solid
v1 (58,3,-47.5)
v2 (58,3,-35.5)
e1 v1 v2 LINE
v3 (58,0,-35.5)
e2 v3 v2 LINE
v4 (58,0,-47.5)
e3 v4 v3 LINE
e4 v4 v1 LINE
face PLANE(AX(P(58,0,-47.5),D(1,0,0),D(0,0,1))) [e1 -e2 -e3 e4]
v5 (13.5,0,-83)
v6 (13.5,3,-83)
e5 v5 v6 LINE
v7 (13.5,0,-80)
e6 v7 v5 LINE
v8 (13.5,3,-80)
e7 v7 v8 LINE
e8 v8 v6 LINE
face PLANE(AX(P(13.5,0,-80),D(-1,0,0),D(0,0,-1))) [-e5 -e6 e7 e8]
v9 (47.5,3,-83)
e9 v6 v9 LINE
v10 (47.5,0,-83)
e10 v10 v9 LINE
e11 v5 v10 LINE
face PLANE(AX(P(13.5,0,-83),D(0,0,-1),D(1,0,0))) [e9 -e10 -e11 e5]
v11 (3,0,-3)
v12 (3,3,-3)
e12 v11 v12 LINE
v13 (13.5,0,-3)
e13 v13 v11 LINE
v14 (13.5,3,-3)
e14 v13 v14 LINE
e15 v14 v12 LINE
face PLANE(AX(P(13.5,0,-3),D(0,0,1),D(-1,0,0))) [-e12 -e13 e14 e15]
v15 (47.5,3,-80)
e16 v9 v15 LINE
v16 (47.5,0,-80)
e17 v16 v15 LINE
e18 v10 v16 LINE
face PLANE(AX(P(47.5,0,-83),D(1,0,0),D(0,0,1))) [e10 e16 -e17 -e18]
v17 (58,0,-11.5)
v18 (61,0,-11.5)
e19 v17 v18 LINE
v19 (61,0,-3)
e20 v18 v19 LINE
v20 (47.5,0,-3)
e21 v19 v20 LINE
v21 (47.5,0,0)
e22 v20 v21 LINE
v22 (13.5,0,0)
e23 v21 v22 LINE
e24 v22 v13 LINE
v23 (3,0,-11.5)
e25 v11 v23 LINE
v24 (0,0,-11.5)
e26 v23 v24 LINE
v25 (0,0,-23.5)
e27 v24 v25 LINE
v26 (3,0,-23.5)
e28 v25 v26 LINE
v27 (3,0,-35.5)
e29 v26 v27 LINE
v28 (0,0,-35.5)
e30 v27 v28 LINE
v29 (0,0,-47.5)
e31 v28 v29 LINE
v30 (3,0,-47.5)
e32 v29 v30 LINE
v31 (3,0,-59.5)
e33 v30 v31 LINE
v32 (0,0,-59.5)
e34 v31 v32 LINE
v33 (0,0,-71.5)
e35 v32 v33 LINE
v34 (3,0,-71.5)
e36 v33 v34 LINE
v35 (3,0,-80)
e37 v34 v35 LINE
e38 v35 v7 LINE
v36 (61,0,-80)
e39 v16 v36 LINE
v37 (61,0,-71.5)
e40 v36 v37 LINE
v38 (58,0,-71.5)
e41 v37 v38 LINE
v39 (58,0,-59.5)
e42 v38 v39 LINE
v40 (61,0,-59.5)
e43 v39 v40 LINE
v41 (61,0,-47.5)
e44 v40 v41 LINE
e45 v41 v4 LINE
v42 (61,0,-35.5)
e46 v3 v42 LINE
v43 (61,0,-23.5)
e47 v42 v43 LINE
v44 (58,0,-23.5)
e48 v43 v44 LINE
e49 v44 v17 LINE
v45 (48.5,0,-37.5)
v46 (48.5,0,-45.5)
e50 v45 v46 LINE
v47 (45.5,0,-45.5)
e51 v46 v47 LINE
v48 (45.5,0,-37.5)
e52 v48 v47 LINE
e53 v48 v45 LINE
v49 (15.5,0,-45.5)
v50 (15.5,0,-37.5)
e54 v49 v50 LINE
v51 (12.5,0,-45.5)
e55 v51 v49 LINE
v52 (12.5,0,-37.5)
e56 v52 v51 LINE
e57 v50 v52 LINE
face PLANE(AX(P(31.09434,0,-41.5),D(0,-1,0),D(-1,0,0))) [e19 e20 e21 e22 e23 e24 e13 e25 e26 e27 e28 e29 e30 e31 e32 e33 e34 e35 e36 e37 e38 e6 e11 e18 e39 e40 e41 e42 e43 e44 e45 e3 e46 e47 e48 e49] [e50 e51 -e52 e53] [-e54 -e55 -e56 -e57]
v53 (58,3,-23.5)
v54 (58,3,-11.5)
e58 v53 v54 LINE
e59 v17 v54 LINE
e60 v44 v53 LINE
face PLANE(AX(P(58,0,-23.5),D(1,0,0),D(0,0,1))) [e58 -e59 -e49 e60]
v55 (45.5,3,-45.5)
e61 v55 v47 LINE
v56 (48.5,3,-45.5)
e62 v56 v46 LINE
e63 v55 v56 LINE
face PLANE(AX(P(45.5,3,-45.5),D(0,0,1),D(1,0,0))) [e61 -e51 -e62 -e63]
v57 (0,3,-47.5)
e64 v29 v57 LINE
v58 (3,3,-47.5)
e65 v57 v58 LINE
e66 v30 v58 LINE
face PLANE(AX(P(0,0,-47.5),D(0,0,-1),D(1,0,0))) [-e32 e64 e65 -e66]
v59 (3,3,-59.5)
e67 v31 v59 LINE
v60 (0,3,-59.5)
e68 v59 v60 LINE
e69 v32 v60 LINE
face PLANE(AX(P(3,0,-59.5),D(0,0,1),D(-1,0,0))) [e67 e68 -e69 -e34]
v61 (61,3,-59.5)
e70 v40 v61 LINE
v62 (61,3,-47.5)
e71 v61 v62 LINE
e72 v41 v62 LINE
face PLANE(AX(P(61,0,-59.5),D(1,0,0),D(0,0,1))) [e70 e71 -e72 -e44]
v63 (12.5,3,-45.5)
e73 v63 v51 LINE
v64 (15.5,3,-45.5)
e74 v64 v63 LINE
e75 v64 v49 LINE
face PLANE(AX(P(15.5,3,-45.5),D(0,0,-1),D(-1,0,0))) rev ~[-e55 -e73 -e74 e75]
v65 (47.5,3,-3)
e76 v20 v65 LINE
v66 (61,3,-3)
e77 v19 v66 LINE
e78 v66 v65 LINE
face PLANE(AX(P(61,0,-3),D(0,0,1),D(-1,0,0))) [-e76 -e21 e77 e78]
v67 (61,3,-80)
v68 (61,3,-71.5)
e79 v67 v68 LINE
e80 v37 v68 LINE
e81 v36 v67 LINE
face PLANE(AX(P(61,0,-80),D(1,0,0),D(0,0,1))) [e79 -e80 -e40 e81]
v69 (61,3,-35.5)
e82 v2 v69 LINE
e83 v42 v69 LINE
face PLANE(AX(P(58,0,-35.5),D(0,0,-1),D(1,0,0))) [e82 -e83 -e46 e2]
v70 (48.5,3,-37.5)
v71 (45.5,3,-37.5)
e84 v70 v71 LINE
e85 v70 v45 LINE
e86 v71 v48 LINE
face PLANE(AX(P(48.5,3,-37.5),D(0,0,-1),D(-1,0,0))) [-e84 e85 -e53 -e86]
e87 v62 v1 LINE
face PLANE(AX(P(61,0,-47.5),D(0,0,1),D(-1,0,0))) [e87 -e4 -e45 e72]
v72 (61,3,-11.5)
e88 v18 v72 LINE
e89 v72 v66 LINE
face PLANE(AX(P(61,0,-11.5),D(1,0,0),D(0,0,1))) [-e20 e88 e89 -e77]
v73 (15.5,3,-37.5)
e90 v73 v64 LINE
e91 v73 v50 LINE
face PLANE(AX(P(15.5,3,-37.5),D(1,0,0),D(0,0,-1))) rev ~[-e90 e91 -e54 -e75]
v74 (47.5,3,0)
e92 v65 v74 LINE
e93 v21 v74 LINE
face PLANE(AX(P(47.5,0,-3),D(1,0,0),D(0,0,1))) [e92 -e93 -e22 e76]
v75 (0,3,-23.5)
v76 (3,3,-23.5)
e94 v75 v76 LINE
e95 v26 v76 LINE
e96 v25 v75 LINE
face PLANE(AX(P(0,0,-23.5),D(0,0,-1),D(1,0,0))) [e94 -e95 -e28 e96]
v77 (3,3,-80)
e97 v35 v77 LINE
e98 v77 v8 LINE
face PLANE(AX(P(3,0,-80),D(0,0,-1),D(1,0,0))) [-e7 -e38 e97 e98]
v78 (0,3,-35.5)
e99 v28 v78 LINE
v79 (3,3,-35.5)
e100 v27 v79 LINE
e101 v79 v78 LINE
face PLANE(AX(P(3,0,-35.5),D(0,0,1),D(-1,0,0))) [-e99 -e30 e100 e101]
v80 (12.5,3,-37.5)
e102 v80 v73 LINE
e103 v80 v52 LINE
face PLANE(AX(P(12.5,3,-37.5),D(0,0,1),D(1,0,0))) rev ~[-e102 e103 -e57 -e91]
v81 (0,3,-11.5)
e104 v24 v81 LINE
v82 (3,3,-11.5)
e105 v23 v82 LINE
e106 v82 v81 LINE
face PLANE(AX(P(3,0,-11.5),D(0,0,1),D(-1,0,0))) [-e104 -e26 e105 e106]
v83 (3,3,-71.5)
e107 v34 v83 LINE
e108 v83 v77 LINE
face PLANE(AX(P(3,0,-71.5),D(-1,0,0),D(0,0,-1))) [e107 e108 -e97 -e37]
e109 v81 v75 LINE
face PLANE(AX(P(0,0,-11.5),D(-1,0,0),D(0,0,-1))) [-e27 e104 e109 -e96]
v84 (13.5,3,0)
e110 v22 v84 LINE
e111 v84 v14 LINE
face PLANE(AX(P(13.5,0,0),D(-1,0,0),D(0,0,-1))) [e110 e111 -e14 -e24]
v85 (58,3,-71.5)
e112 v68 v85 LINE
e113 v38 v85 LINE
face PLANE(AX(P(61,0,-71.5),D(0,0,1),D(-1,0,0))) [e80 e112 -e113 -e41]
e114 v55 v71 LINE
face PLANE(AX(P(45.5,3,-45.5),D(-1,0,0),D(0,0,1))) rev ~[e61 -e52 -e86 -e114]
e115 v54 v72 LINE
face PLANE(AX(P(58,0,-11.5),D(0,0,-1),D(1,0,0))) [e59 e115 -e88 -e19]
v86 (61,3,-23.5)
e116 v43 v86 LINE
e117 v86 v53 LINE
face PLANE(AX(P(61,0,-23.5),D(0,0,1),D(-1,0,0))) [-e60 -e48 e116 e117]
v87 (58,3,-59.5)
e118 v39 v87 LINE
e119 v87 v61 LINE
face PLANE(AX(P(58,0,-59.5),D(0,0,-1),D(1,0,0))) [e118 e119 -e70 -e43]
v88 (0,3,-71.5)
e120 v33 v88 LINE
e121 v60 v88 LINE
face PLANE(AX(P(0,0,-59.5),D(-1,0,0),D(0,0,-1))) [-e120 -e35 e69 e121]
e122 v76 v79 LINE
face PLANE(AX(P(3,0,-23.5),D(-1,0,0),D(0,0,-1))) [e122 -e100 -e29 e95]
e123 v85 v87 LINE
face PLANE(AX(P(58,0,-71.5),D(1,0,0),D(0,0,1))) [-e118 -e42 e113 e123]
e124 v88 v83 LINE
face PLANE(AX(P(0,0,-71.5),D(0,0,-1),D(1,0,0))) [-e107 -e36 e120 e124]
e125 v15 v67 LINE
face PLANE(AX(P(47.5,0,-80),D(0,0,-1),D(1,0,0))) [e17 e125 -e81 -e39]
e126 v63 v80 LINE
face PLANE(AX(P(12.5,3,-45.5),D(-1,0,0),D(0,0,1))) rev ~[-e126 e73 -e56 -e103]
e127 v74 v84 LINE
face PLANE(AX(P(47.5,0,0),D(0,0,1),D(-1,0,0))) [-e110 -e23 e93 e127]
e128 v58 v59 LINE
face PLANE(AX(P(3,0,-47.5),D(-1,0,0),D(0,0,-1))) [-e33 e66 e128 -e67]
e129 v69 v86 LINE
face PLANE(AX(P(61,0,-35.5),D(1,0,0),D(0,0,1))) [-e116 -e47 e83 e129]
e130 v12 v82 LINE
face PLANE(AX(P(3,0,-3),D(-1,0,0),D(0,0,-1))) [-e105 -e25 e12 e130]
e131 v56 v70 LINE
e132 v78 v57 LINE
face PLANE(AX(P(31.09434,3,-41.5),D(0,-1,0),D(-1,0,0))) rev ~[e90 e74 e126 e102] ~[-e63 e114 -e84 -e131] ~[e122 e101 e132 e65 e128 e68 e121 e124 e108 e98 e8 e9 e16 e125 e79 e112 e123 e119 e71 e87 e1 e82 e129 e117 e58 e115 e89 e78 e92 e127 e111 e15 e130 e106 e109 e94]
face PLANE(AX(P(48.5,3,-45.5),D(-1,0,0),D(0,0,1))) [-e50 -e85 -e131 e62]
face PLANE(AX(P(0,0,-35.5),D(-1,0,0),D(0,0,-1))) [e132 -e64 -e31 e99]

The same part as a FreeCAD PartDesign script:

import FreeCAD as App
import Part
import Sketcher

V = App.Vector

doc = App.newDocument("Part")
body = doc.addObject("PartDesign::Body", "Body")

# Sketch on XZ plane
sketch1 = body.newObject("Sketcher::SketchObject", "Sketch")
sketch1.AttachmentSupport = (doc.getObject("XZ_Plane"), [""])
sketch1.MapMode = "FlatFace"
sketch1.addGeometry([
    Part.LineSegment(V(0, -35.5, 0), V(3, -35.5, 0)),  # 0
    Part.LineSegment(V(3, -35.5, 0), V(3, -23.5, 0)),  # 1
    Part.LineSegment(V(3, -23.5, 0), V(0, -23.5, 0)),  # 2
    Part.LineSegment(V(0, -23.5, 0), V(0, -11.5, 0)),  # 3
    Part.LineSegment(V(0, -11.5, 0), V(3, -11.5, 0)),  # 4
    Part.LineSegment(V(3, -11.5, 0), V(3, -3, 0)),  # 5
    Part.LineSegment(V(3, -3, 0), V(13.5, -3, 0)),  # 6
    Part.LineSegment(V(13.5, -3, 0), V(13.5, 0, 0)),  # 7
    Part.LineSegment(V(13.5, 0, 0), V(47.5, 0, 0)),  # 8
    Part.LineSegment(V(47.5, 0, 0), V(47.5, -3, 0)),  # 9
    Part.LineSegment(V(47.5, -3, 0), V(61, -3, 0)),  # 10
    Part.LineSegment(V(61, -3, 0), V(61, -11.5, 0)),  # 11
    Part.LineSegment(V(61, -11.5, 0), V(58, -11.5, 0)),  # 12
    Part.LineSegment(V(58, -11.5, 0), V(58, -23.5, 0)),  # 13
    Part.LineSegment(V(58, -23.5, 0), V(61, -23.5, 0)),  # 14
    Part.LineSegment(V(61, -23.5, 0), V(61, -35.5, 0)),  # 15
    Part.LineSegment(V(61, -35.5, 0), V(58, -35.5, 0)),  # 16
    Part.LineSegment(V(58, -35.5, 0), V(58, -47.5, 0)),  # 17
    Part.LineSegment(V(58, -47.5, 0), V(61, -47.5, 0)),  # 18
    Part.LineSegment(V(61, -47.5, 0), V(61, -59.5, 0)),  # 19
    Part.LineSegment(V(61, -59.5, 0), V(58, -59.5, 0)),  # 20
    Part.LineSegment(V(58, -59.5, 0), V(58, -71.5, 0)),  # 21
    Part.LineSegment(V(58, -71.5, 0), V(61, -71.5, 0)),  # 22
    Part.LineSegment(V(61, -71.5, 0), V(61, -80, 0)),  # 23
    Part.LineSegment(V(61, -80, 0), V(47.5, -80, 0)),  # 24
    Part.LineSegment(V(47.5, -80, 0), V(47.5, -83, 0)),  # 25
    Part.LineSegment(V(47.5, -83, 0), V(13.5, -83, 0)),  # 26
    Part.LineSegment(V(13.5, -83, 0), V(13.5, -80, 0)),  # 27
    Part.LineSegment(V(13.5, -80, 0), V(3, -80, 0)),  # 28
    Part.LineSegment(V(3, -80, 0), V(3, -71.5, 0)),  # 29
    Part.LineSegment(V(3, -71.5, 0), V(0, -71.5, 0)),  # 30
    Part.LineSegment(V(0, -71.5, 0), V(0, -59.5, 0)),  # 31
    Part.LineSegment(V(0, -59.5, 0), V(3, -59.5, 0)),  # 32
    Part.LineSegment(V(3, -59.5, 0), V(3, -47.5, 0)),  # 33
    Part.LineSegment(V(3, -47.5, 0), V(0, -47.5, 0)),  # 34
    Part.LineSegment(V(0, -47.5, 0), V(0, -35.5, 0)),  # 35
], False)
sketch1.addConstraint([
    Sketcher.Constraint("Coincident", 0, 2, 1, 1),
    Sketcher.Constraint("Coincident", 1, 2, 2, 1),
    Sketcher.Constraint("Coincident", 2, 2, 3, 1),
    Sketcher.Constraint("Coincident", 3, 2, 4, 1),
    Sketcher.Constraint("Coincident", 4, 2, 5, 1),
    Sketcher.Constraint("Coincident", 5, 2, 6, 1),
    Sketcher.Constraint("Coincident", 6, 2, 7, 1),
    Sketcher.Constraint("Coincident", 7, 2, 8, 1),
    Sketcher.Constraint("Coincident", 8, 2, 9, 1),
    Sketcher.Constraint("Coincident", 9, 2, 10, 1),
    Sketcher.Constraint("Coincident", 10, 2, 11, 1),
    Sketcher.Constraint("Coincident", 11, 2, 12, 1),
    Sketcher.Constraint("Coincident", 12, 2, 13, 1),
    Sketcher.Constraint("Coincident", 13, 2, 14, 1),
    Sketcher.Constraint("Coincident", 14, 2, 15, 1),
    Sketcher.Constraint("Coincident", 15, 2, 16, 1),
    Sketcher.Constraint("Coincident", 16, 2, 17, 1),
    Sketcher.Constraint("Coincident", 17, 2, 18, 1),
    Sketcher.Constraint("Coincident", 18, 2, 19, 1),
    Sketcher.Constraint("Coincident", 19, 2, 20, 1),
    Sketcher.Constraint("Coincident", 20, 2, 21, 1),
    Sketcher.Constraint("Coincident", 21, 2, 22, 1),
    Sketcher.Constraint("Coincident", 22, 2, 23, 1),
    Sketcher.Constraint("Coincident", 23, 2, 24, 1),
    Sketcher.Constraint("Coincident", 24, 2, 25, 1),
    Sketcher.Constraint("Coincident", 25, 2, 26, 1),
    Sketcher.Constraint("Coincident", 26, 2, 27, 1),
    Sketcher.Constraint("Coincident", 27, 2, 28, 1),
    Sketcher.Constraint("Coincident", 28, 2, 29, 1),
    Sketcher.Constraint("Coincident", 29, 2, 30, 1),
    Sketcher.Constraint("Coincident", 30, 2, 31, 1),
    Sketcher.Constraint("Coincident", 31, 2, 32, 1),
    Sketcher.Constraint("Coincident", 32, 2, 33, 1),
    Sketcher.Constraint("Coincident", 33, 2, 34, 1),
    Sketcher.Constraint("Coincident", 34, 2, 35, 1),
    Sketcher.Constraint("Coincident", 35, 2, 0, 1),
    Sketcher.Constraint("Horizontal", 0),
    Sketcher.Constraint("Vertical", 1),
    Sketcher.Constraint("Horizontal", 2),
    Sketcher.Constraint("Vertical", 3),
    Sketcher.Constraint("Horizontal", 4),
    Sketcher.Constraint("Vertical", 5),
    Sketcher.Constraint("Horizontal", 6),
    Sketcher.Constraint("Vertical", 7),
    Sketcher.Constraint("Horizontal", 8),
    Sketcher.Constraint("Vertical", 9),
    Sketcher.Constraint("Horizontal", 10),
    Sketcher.Constraint("Vertical", 11),
    Sketcher.Constraint("Horizontal", 12),
    Sketcher.Constraint("Vertical", 13),
    Sketcher.Constraint("Horizontal", 14),
    Sketcher.Constraint("Vertical", 15),
    Sketcher.Constraint("Horizontal", 16),
    Sketcher.Constraint("Vertical", 17),
    Sketcher.Constraint("Horizontal", 18),
    Sketcher.Constraint("Vertical", 19),
    Sketcher.Constraint("Horizontal", 20),
    Sketcher.Constraint("Vertical", 21),
    Sketcher.Constraint("Horizontal", 22),
    Sketcher.Constraint("Vertical", 23),
    Sketcher.Constraint("Horizontal", 24),
    Sketcher.Constraint("Vertical", 25),
    Sketcher.Constraint("Horizontal", 26),
    Sketcher.Constraint("Vertical", 27),
    Sketcher.Constraint("Horizontal", 28),
    Sketcher.Constraint("Vertical", 29),
    Sketcher.Constraint("Horizontal", 30),
    Sketcher.Constraint("Vertical", 31),
    Sketcher.Constraint("Horizontal", 32),
    Sketcher.Constraint("Vertical", 33),
    Sketcher.Constraint("Horizontal", 34),
    Sketcher.Constraint("Vertical", 35),
    Sketcher.Constraint("PointOnObject", 2, 2, -2),
    Sketcher.Constraint("PointOnObject", 7, 2, -1),
    Sketcher.Constraint("PointOnObject", 30, 2, -2),
    Sketcher.Constraint("PointOnObject", 34, 2, -2),
    Sketcher.Constraint("Horizontal", 6, 2, 9, 2),
    Sketcher.Constraint("Horizontal", 4, 2, 11, 2),
    Sketcher.Constraint("Horizontal", 2, 2, 13, 2),
    Sketcher.Constraint("Horizontal", 0, 2, 15, 2),
    Sketcher.Constraint("Horizontal", 24, 2, 27, 2),
    Sketcher.Constraint("Horizontal", 22, 2, 29, 2),
    Sketcher.Constraint("Horizontal", 20, 2, 31, 2),
    Sketcher.Constraint("Horizontal", 18, 2, 33, 2),
    Sketcher.Constraint("Vertical", 1, 2, 4, 2),
    Sketcher.Constraint("Vertical", 11, 2, 14, 2),
    Sketcher.Constraint("Vertical", 13, 2, 16, 2),
    Sketcher.Constraint("Vertical", 15, 2, 18, 2),
    Sketcher.Constraint("Vertical", 17, 2, 20, 2),
    Sketcher.Constraint("Vertical", 19, 2, 22, 2),
    Sketcher.Constraint("Vertical", 9, 2, 24, 2),
    Sketcher.Constraint("Vertical", 7, 2, 26, 2),
    Sketcher.Constraint("Vertical", 5, 2, 28, 2),
    Sketcher.Constraint("Vertical", 29, 2, 32, 2),
    Sketcher.Constraint("Equal", 4, 12),
    Sketcher.Constraint("Equal", 1, 3),
    Sketcher.Constraint("Equal", 34, 7),
    Sketcher.Constraint("Equal", 15, 17),
    Sketcher.Constraint("Equal", 17, 19),
    Sketcher.Constraint("Equal", 19, 21),
    Sketcher.Constraint("Equal", 11, 23),
    Sketcher.Constraint("Equal", 9, 25),
    Sketcher.Constraint("DistanceX", 0, 1, 0, 2, 3.0),
    Sketcher.Constraint("DistanceX", 8, 1, 8, 2, 34.0),
    Sketcher.Constraint("DistanceY", 1, 1, 1, 2, 12.0),
    Sketcher.Constraint("DistanceX", 6, 1, 6, 2, 10.5),
    Sketcher.Constraint("DistanceX", 10, 1, 10, 2, 13.5),
    Sketcher.Constraint("DistanceY", 5, 1, 5, 2, 8.5),
])
pad1 = body.newObject("PartDesign::Pad", "Pad")
pad1.Profile = sketch1
pad1.Length = 3
pad1.Reversed = True

# Sketch on XZ plane
sketch2 = body.newObject("Sketcher::SketchObject", "Sketch001")
sketch2.AttachmentSupport = (doc.getObject("XZ_Plane"), [""])
sketch2.MapMode = "FlatFace"
sketch2.AttachmentOffset = App.Placement(V(0, 0, -3), App.Rotation())
sketch2.addGeometry([
    Part.LineSegment(V(15.5, -45.5, 0), V(12.5, -45.5, 0)),  # 0
    Part.LineSegment(V(12.5, -45.5, 0), V(12.5, -37.5, 0)),  # 1
    Part.LineSegment(V(12.5, -37.5, 0), V(15.5, -37.5, 0)),  # 2
    Part.LineSegment(V(15.5, -37.5, 0), V(15.5, -45.5, 0)),  # 3
    Part.LineSegment(V(45.5, -45.5, 0), V(45.5, -37.5, 0)),  # 4
    Part.LineSegment(V(45.5, -37.5, 0), V(48.5, -37.5, 0)),  # 5
    Part.LineSegment(V(48.5, -37.5, 0), V(48.5, -45.5, 0)),  # 6
    Part.LineSegment(V(48.5, -45.5, 0), V(45.5, -45.5, 0)),  # 7
], False)
sketch2.addConstraint([
    Sketcher.Constraint("Coincident", 0, 2, 1, 1),
    Sketcher.Constraint("Coincident", 1, 2, 2, 1),
    Sketcher.Constraint("Coincident", 2, 2, 3, 1),
    Sketcher.Constraint("Coincident", 3, 2, 0, 1),
    Sketcher.Constraint("Coincident", 4, 2, 5, 1),
    Sketcher.Constraint("Coincident", 5, 2, 6, 1),
    Sketcher.Constraint("Coincident", 6, 2, 7, 1),
    Sketcher.Constraint("Coincident", 7, 2, 4, 1),
    Sketcher.Constraint("Horizontal", 0),
    Sketcher.Constraint("Vertical", 1),
    Sketcher.Constraint("Horizontal", 2),
    Sketcher.Constraint("Vertical", 3),
    Sketcher.Constraint("Vertical", 4),
    Sketcher.Constraint("Horizontal", 5),
    Sketcher.Constraint("Vertical", 6),
    Sketcher.Constraint("Horizontal", 7),
    Sketcher.Constraint("Horizontal", 2, 2, 4, 2),
    Sketcher.Constraint("Horizontal", 3, 2, 6, 2),
    Sketcher.Constraint("Equal", 2, 5),
    Sketcher.Constraint("DistanceX", 0, 2, 0, 1, 3.0),
    Sketcher.Constraint("DistanceY", 1, 1, 1, 2, 8.0),
    Sketcher.Constraint("DistanceX", 2, 2, 4, 2, 30.0),
    Sketcher.Constraint("DistanceX", -1, 1, 0, 2, 12.5),
    Sketcher.Constraint("DistanceY", 0, 2, -1, 1, 45.5),
])
pocket1 = body.newObject("PartDesign::Pocket", "Pocket")
pocket1.Profile = sketch2
pocket1.Length = 10
pocket1.Reversed = True

doc.recompute()
